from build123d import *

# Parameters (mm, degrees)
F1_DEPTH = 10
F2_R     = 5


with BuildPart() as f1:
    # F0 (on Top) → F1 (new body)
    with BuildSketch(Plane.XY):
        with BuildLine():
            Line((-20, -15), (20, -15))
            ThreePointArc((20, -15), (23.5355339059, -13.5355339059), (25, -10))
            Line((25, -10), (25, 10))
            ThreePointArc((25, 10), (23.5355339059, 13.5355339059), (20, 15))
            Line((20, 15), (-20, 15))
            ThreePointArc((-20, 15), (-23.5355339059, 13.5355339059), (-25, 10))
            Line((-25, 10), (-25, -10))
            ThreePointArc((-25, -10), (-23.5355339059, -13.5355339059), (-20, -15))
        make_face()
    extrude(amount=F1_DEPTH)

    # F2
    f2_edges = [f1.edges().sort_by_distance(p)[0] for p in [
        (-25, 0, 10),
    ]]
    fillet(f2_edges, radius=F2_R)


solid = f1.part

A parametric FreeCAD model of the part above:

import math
import FreeCAD as App
import Part
import Sketcher

V = App.Vector
Q = App.Units.Quantity


def edges_at(feature, points):
    """Names of the edges that pass closest to the given points."""
    edges = feature.Shape.Edges
    near = lambda p: min(range(len(edges)), key=lambda i: edges[i].distToShape(Part.Vertex(*p))[0])
    return sorted({f"Edge{near(p) + 1}" for p in points})

doc = App.newDocument("Part")
body = doc.addObject("PartDesign::Body", "Body")

# Sketch on XY plane
sketch1 = body.newObject("Sketcher::SketchObject", "Sketch")
sketch1.AttachmentSupport = (doc.getObject("XY_Plane"), [""])
sketch1.MapMode = "FlatFace"
sketch1.addGeometry(Part.LineSegment(V(-20, -15, 0), V(20, -15, 0)), False)
sketch1.addGeometry(Part.ArcOfCircle(Part.Circle(V(20, -10, 0), V(0, 0, 1), 5), math.radians(-90), math.radians(0)), False)
sketch1.addGeometry(Part.LineSegment(V(25, -10, 0), V(25, 10, 0)), False)
sketch1.addGeometry(Part.ArcOfCircle(Part.Circle(V(20, 10, 0), V(0, 0, 1), 5), math.radians(0), math.radians(90)), False)
sketch1.addGeometry(Part.LineSegment(V(20, 15, 0), V(-20, 15, 0)), False)
sketch1.addGeometry(Part.ArcOfCircle(Part.Circle(V(-20, 10, 0), V(0, 0, 1), 5), math.radians(90), math.radians(180)), False)
sketch1.addGeometry(Part.LineSegment(V(-25, 10, 0), V(-25, -10, 0)), False)
sketch1.addGeometry(Part.ArcOfCircle(Part.Circle(V(-20, -10, 0), V(0, 0, 1), 5), math.radians(180), math.radians(270)), False)
sketch1.addConstraint(Sketcher.Constraint("Tangent", 0, 2, 1, 1))
sketch1.addConstraint(Sketcher.Constraint("Tangent", 1, 2, 2, 1))
sketch1.addConstraint(Sketcher.Constraint("Tangent", 2, 2, 3, 1))
sketch1.addConstraint(Sketcher.Constraint("Tangent", 3, 2, 4, 1))
sketch1.addConstraint(Sketcher.Constraint("Tangent", 4, 2, 5, 1))
sketch1.addConstraint(Sketcher.Constraint("Tangent", 5, 2, 6, 1))
sketch1.addConstraint(Sketcher.Constraint("Tangent", 6, 2, 7, 1))
sketch1.addConstraint(Sketcher.Constraint("Tangent", 7, 2, 0, 1))
sketch1.addConstraint(Sketcher.Constraint("Horizontal", 0))
sketch1.addConstraint(Sketcher.Constraint("Vertical", 2))
sketch1.addConstraint(Sketcher.Constraint("Horizontal", 4))
sketch1.addConstraint(Sketcher.Constraint("Vertical", 6))
sketch1.addConstraint(Sketcher.Constraint("Equal", 1, 3))
sketch1.addConstraint(Sketcher.Constraint("Equal", 3, 5))
sketch1.addConstraint(Sketcher.Constraint("Equal", 5, 7))
sketch1.addConstraint(Sketcher.Constraint("Symmetric", 1, 3, 5, 3, -1, 1))
sketch1.addConstraint(Sketcher.Constraint("Radius", 1, Q("5 mm")))
sketch1.addConstraint(Sketcher.Constraint("DistanceX", 0, 1, 0, 2, Q("40 mm")))
sketch1.addConstraint(Sketcher.Constraint("DistanceY", 2, 1, 2, 2, Q("20 mm")))
pad1 = body.newObject("PartDesign::Pad", "Pad")
pad1.Profile = sketch1
pad1.Length = 10
doc.recompute()

fillet = body.newObject("PartDesign::Fillet", "Fillet")
fillet.Base = (pad1, edges_at(pad1, [(-25, 0, 10)]))
fillet.Radius = 5

doc.recompute()
